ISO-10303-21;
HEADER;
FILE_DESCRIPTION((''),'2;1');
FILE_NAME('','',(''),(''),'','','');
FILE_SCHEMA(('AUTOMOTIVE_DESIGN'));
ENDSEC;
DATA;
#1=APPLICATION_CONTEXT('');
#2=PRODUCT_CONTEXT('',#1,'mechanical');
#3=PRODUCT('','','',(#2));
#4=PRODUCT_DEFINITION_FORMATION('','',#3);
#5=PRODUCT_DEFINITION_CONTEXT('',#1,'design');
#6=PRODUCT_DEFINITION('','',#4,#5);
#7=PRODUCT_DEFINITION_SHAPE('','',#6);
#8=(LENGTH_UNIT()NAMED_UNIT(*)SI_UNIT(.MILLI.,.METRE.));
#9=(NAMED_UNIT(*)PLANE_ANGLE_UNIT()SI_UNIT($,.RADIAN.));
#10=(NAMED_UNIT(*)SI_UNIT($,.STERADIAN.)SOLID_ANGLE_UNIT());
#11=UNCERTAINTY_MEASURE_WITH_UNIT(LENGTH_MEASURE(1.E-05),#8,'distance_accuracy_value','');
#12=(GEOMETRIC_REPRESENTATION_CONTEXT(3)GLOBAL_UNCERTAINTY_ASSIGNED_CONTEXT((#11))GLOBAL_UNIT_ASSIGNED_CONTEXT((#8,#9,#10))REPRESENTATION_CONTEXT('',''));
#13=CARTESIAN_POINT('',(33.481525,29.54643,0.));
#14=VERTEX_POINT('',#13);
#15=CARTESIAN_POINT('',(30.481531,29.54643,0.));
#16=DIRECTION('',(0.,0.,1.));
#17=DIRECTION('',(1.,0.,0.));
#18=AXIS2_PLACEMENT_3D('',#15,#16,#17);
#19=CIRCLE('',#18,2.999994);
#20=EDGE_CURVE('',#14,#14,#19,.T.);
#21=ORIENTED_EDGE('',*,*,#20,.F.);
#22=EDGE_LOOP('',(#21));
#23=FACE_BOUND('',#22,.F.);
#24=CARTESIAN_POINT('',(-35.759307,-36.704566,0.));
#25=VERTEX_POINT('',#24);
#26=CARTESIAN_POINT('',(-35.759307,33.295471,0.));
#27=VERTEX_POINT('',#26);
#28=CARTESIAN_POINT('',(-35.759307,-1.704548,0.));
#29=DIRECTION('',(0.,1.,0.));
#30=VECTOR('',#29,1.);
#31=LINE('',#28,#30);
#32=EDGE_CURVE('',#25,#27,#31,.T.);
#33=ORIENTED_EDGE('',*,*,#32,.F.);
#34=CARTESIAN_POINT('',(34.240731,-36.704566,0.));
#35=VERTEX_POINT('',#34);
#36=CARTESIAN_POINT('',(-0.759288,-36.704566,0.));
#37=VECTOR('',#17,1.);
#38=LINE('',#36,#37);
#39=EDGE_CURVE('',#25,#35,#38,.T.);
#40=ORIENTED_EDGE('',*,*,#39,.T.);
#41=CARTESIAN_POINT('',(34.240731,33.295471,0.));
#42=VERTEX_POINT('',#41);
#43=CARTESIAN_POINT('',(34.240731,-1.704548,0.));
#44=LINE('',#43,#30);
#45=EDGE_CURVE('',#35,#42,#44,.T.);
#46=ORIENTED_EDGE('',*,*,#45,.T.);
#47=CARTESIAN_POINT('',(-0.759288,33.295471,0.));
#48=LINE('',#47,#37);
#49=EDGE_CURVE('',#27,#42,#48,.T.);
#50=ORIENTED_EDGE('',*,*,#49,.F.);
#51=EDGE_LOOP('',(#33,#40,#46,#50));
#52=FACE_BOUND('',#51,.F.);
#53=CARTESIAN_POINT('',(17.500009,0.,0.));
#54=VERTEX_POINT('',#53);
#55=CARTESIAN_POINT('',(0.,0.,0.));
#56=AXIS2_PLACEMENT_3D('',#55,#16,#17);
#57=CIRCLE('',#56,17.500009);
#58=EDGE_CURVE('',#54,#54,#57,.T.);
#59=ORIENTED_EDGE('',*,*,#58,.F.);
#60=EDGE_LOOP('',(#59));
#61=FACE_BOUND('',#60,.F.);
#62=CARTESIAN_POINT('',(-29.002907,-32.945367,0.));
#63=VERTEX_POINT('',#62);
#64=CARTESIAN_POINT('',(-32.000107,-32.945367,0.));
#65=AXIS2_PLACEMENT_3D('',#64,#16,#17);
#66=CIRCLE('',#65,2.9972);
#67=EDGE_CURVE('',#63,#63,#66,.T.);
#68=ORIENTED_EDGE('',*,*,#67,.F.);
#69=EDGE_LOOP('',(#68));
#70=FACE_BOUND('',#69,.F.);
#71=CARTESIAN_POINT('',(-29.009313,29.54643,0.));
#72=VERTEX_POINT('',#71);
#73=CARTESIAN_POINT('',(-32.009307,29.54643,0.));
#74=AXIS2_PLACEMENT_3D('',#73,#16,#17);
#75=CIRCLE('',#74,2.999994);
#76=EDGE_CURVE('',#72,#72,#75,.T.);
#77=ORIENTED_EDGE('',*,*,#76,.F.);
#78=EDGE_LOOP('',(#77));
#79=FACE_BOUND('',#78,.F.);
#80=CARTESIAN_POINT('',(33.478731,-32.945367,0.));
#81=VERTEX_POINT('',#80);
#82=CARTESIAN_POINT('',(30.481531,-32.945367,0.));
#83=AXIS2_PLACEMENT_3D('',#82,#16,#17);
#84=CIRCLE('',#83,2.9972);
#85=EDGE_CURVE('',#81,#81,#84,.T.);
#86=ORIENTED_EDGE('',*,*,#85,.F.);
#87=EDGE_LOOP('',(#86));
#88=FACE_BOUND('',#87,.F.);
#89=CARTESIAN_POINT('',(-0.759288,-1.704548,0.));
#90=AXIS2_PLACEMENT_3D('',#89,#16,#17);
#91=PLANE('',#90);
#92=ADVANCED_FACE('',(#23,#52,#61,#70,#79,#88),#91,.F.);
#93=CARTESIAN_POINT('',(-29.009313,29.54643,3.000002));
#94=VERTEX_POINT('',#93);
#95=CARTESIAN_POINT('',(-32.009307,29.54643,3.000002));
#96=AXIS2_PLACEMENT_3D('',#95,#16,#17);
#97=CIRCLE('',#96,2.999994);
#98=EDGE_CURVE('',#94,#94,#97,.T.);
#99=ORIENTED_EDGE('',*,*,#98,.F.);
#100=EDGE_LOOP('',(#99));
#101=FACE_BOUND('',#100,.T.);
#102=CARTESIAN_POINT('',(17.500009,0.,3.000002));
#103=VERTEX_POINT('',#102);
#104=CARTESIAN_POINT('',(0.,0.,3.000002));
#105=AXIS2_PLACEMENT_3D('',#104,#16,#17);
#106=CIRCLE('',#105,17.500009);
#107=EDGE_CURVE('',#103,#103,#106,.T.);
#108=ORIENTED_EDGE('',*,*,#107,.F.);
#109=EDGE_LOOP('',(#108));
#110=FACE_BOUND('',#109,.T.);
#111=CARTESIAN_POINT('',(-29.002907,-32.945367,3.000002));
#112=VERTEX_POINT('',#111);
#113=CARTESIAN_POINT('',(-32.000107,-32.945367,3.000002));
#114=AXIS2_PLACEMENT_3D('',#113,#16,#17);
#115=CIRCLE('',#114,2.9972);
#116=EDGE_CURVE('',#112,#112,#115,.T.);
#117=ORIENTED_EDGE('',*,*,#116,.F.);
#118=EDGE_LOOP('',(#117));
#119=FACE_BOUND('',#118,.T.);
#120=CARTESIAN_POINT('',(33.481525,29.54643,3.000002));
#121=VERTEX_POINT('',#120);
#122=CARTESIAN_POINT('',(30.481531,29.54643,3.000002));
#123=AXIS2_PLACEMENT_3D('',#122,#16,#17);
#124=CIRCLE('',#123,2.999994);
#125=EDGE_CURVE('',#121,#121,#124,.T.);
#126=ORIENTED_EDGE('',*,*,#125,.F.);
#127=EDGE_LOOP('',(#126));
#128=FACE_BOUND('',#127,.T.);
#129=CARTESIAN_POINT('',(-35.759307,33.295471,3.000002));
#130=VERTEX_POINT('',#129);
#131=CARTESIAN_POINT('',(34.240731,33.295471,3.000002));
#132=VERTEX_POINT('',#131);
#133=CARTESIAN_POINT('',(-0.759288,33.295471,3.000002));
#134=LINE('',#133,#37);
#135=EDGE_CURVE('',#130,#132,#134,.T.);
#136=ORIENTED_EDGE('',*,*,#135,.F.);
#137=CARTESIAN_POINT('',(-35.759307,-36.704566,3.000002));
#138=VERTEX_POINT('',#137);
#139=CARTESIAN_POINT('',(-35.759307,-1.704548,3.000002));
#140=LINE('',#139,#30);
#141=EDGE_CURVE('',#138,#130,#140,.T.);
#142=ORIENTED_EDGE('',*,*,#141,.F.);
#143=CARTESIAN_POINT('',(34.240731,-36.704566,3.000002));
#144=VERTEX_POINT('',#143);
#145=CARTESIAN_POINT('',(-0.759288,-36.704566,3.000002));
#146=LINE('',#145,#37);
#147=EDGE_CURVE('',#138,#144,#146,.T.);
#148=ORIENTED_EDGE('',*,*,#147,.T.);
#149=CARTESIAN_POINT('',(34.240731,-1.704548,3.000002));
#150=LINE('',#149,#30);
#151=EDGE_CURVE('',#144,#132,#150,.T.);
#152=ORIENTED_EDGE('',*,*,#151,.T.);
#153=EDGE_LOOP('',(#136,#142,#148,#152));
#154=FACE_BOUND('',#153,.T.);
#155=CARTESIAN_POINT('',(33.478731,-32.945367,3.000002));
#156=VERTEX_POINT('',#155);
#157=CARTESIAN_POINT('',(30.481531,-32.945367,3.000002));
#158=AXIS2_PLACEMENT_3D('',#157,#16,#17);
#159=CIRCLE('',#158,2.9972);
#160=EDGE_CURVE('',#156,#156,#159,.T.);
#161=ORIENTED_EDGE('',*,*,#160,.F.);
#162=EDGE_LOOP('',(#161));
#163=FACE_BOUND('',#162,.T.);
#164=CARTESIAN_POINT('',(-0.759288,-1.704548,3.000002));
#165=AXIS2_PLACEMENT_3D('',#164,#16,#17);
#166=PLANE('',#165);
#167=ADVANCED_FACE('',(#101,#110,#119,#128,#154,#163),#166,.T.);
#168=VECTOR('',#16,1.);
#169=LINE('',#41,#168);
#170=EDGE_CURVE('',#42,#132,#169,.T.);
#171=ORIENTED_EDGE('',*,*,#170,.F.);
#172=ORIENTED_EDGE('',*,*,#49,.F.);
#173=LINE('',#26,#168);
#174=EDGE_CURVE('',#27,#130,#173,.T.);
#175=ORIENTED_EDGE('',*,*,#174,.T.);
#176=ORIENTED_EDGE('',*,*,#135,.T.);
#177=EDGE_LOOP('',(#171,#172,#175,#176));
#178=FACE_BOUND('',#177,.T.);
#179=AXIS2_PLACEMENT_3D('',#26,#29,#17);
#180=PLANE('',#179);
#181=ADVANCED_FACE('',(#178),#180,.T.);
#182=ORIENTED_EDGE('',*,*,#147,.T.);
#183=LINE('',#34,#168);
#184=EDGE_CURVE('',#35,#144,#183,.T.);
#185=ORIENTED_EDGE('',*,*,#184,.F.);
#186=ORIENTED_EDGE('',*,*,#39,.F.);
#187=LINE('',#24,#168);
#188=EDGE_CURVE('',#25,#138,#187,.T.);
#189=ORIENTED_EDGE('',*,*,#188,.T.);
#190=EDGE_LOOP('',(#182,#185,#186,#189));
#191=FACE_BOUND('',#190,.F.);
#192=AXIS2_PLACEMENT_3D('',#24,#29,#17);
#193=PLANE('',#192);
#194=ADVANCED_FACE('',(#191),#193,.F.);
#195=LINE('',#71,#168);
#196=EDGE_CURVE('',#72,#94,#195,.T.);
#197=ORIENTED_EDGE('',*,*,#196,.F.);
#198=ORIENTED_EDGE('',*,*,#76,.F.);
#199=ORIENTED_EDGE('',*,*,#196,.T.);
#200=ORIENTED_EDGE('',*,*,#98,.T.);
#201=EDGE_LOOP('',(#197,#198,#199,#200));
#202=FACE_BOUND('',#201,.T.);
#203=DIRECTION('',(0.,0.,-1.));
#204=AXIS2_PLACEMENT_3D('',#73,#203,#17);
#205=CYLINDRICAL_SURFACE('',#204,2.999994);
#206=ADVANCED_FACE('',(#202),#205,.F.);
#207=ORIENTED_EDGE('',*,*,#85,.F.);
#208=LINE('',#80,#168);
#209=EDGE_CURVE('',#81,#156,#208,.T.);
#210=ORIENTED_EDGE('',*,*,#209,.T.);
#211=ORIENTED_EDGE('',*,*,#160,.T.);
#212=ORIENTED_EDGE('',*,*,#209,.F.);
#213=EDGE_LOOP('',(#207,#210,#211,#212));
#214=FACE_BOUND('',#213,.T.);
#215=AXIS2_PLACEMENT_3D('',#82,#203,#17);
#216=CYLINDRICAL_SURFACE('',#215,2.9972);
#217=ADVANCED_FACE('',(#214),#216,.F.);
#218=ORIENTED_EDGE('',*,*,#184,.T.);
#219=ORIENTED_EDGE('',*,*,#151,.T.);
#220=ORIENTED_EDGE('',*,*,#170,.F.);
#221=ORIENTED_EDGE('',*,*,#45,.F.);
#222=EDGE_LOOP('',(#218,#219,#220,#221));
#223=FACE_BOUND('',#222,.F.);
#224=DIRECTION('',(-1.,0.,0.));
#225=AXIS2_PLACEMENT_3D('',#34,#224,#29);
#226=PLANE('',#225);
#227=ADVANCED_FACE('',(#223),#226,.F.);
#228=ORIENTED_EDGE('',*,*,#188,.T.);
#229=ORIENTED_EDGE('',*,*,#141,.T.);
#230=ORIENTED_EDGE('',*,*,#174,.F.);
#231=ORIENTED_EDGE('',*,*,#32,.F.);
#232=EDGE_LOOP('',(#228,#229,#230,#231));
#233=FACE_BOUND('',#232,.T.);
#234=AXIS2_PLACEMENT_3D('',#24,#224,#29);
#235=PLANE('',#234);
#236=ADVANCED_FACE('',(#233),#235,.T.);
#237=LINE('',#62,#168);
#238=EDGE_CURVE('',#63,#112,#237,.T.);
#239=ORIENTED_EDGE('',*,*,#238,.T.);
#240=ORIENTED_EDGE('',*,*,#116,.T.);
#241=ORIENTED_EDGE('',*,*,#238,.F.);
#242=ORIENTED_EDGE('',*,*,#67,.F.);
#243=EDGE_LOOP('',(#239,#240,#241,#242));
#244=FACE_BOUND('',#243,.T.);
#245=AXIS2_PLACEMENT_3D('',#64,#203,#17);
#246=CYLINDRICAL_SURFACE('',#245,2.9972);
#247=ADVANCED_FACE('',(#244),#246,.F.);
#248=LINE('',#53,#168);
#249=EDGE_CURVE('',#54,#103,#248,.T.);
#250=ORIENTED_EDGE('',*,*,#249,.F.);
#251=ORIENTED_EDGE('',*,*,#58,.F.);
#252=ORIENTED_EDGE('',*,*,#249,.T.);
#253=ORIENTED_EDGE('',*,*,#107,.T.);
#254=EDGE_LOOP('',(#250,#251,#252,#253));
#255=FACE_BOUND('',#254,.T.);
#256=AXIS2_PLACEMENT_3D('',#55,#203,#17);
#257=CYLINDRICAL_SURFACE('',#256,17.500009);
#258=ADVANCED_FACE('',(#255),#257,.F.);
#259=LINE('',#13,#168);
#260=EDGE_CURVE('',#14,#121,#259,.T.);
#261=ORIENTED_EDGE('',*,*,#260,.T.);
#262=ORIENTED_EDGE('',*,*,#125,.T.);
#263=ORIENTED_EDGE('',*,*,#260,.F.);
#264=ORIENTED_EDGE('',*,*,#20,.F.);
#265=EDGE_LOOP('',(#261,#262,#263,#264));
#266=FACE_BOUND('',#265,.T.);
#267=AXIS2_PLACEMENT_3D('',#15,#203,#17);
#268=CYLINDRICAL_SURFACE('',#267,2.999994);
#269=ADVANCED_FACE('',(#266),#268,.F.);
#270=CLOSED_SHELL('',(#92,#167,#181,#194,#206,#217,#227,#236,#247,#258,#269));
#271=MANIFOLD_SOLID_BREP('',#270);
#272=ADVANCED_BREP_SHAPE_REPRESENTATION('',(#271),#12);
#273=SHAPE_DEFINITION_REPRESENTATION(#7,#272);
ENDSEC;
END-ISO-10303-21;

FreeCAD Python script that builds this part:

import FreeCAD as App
import Part
import Sketcher
Q = App.Units.Quantity


def add_polygon(sketch, points):
    """Adds a closed chain of lines whose ends are joined by coincident constraints."""
    first, n = sketch.GeometryCount, len(points)
    for a, b in zip(points, points[1:] + points[:1]):
        sketch.addGeometry(Part.LineSegment(App.Vector(*a, 0), App.Vector(*b, 0)), False)
    for i in range(n):
        sketch.addConstraint(Sketcher.Constraint("Coincident", first + i, 2, first + (i + 1) % n, 1))

doc = App.newDocument("Part")
body = doc.addObject("PartDesign::Body", "Body")

# Sketch on XY plane
sketch1 = body.newObject("Sketcher::SketchObject", "Sketch")
sketch1.AttachmentSupport = (doc.getObject("XY_Plane"), [""])
sketch1.MapMode = "FlatFace"
add_polygon(sketch1, [(-35.8, 33.3), (-35.8, -36.7), (34.2, -36.7), (34.2, 33.3)])  # lines 0-3
sketch1.addGeometry(Part.Circle(App.Vector(-32, -32.9, 0), App.Vector(0, 0, 1), 3), False)  # 4
sketch1.addGeometry(Part.Circle(App.Vector(30.5, -32.9, 0), App.Vector(0, 0, 1), 3), False)  # 5
sketch1.addGeometry(Part.Circle(App.Vector(-32, 29.5, 0), App.Vector(0, 0, 1), 3), False)  # 6
sketch1.addGeometry(Part.Circle(App.Vector(0, 0, 0), App.Vector(0, 0, 1), 17.5), False)  # 7
sketch1.addGeometry(Part.Circle(App.Vector(30.5, 29.5, 0), App.Vector(0, 0, 1), 3), False)  # 8
sketch1.addConstraint([
    Sketcher.Constraint("Vertical", 0),
    Sketcher.Constraint("Horizontal", 1),
    Sketcher.Constraint("Vertical", 2),
    Sketcher.Constraint("Horizontal", 3),
    Sketcher.Constraint("Coincident", 7, 3, -1, 1),
    Sketcher.Constraint("Equal", 4, 5),
    Sketcher.Constraint("Equal", 6, 8),
    Sketcher.Constraint("Horizontal", 4, 3, 5, 3),
    Sketcher.Constraint("Horizontal", 6, 3, 8, 3),
    Sketcher.Constraint("Vertical", 5, 3, 8, 3),
    Sketcher.Constraint("Equal", 3, 0),
    Sketcher.Constraint("Diameter", 4, Q("5.9944 mm")),
    Sketcher.Constraint("DistanceX", 0, 2, 6, 3, Q("3.75 mm")),
    Sketcher.Constraint("Diameter", 6, Q("5.999988 mm")),
    Sketcher.Constraint("Diameter", 7, Q("35.000018 mm")),
    Sketcher.Constraint("DistanceX", 6, 3, 4, 3, Q("0.0092 mm")),
    Sketcher.Constraint("DistanceY", 0, 2, 4, 3, Q("3.7592 mm")),
    Sketcher.Constraint("DistanceX", 5, 3, 1, 2, Q("3.7592 mm")),
    Sketcher.Constraint("DistanceX", 1, 1, 1, 2, Q("70.000038 mm")),
    Sketcher.Constraint("DistanceX", -1, 1, 5, 3, Q("30.481531 mm")),
    Sketcher.Constraint("DistanceY", -1, 1, 6, 3, Q("29.54643 mm")),
    Sketcher.Constraint("DistanceY", -1, 1, 2, 2, Q("33.295471 mm")),
])
pad1 = body.newObject("PartDesign::Pad", "Pad")
pad1.Profile = sketch1
pad1.Length = 3.000002

doc.recompute()
